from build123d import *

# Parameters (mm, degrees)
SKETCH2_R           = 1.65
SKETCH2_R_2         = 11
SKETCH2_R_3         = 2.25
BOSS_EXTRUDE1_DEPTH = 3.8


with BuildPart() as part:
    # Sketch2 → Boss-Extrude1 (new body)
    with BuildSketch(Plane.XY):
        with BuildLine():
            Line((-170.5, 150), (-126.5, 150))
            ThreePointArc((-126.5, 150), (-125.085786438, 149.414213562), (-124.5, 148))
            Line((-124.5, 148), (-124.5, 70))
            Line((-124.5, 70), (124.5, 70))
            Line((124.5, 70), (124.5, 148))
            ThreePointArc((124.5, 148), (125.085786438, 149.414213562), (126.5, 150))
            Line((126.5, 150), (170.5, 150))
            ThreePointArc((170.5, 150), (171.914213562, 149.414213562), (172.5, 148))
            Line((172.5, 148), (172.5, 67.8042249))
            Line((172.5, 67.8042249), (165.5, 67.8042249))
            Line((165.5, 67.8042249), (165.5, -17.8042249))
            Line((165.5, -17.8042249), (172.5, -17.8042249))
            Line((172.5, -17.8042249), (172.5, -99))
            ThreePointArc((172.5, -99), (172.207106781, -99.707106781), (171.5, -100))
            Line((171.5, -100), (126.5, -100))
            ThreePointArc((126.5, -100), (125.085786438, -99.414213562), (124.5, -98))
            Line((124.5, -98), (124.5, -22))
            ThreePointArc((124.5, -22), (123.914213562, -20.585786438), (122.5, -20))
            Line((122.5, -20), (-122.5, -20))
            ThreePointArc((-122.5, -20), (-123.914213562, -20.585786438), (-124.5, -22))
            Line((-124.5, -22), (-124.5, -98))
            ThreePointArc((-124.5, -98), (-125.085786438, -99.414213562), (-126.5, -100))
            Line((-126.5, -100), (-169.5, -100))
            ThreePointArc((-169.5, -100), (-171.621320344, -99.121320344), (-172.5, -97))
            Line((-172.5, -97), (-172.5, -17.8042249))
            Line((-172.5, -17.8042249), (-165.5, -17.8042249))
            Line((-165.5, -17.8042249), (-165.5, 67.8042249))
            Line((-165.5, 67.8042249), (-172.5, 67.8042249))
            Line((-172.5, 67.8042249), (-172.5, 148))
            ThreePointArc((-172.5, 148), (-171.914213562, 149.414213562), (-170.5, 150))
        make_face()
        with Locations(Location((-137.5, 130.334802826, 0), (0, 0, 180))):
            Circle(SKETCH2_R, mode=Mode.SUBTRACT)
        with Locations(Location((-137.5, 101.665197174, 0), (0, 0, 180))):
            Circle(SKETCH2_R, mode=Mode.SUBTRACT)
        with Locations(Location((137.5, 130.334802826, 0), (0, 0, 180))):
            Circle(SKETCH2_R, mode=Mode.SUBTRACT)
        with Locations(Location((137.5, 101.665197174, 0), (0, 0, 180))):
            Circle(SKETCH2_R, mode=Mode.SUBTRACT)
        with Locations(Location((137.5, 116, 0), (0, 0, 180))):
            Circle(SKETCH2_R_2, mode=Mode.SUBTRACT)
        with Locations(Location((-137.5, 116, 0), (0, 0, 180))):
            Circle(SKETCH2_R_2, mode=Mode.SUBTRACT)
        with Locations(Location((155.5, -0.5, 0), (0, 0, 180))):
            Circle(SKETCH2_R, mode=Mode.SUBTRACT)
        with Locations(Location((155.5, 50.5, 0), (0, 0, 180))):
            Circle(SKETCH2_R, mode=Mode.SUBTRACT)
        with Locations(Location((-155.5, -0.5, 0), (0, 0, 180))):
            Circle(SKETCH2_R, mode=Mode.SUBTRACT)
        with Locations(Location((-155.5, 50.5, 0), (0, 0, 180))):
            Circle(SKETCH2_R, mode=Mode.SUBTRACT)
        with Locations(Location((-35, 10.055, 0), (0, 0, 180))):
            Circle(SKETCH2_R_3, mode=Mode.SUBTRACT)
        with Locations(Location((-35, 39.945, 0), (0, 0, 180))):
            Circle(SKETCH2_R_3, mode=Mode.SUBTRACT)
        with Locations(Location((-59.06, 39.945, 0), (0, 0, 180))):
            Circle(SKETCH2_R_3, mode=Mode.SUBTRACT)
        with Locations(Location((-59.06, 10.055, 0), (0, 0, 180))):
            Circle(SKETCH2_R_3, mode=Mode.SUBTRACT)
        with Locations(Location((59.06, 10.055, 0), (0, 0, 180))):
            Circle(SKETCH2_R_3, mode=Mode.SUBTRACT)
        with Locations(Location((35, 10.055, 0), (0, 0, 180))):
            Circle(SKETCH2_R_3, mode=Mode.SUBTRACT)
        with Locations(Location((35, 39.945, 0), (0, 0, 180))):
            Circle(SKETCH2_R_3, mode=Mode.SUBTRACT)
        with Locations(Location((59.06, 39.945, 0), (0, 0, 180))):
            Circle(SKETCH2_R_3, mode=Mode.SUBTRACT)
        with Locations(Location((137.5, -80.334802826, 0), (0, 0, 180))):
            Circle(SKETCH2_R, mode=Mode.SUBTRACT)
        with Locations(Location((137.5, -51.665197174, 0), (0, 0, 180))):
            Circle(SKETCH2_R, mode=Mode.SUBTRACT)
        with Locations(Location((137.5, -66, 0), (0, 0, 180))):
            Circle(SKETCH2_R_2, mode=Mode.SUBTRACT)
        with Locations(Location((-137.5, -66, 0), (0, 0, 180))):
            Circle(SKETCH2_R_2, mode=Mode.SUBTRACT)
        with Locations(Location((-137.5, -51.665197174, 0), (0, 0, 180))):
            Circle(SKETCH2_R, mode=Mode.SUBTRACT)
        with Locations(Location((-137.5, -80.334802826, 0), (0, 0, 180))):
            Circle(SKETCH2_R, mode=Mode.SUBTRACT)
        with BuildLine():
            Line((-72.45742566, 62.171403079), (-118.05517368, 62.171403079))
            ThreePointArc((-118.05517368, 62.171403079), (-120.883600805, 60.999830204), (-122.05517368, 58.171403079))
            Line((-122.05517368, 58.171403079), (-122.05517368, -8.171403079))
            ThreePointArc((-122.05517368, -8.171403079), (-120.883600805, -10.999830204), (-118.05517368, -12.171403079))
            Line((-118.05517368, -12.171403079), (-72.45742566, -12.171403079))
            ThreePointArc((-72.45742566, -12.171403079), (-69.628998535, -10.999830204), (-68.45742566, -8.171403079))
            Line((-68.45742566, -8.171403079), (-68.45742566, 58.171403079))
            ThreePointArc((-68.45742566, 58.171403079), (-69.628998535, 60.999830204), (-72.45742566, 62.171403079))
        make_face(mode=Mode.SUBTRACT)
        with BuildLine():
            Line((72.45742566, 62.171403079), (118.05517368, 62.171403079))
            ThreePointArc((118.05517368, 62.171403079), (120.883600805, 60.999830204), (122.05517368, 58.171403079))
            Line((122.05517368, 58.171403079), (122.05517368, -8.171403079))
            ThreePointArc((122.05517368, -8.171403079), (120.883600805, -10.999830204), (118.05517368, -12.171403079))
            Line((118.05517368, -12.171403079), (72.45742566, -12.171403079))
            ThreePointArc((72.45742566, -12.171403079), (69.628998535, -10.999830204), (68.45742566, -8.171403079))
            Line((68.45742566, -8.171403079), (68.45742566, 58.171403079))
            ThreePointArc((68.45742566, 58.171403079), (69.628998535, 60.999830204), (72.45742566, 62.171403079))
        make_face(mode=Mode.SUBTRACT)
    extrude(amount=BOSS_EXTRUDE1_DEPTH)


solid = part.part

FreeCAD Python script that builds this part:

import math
import FreeCAD as App
import Part
import Sketcher
Q = App.Units.Quantity

doc = App.newDocument("Part")
params = doc.addObject("Spreadsheet::Sheet", "Params")
for row, (alias, value) in enumerate([
    ("sketch1_diameter", "22 mm"),
    ("sketch1_radius", "2 mm"),
    ("sketch1_radius2", "3 mm"),
    ("sketch1_radius3", "1 mm"),
    ("sketch1_radius4", "4 mm"),
    ("pad1_length", "3.8 mm"),
], start=1):
    params.set(f"A{row}", alias)
    params.set(f"B{row}", "=" + value)
    params.setAlias(f"B{row}", alias)

body = doc.addObject("PartDesign::Body", "Body")

sketch1 = doc.addObject("Sketcher::SketchObject", "Sketch")
body.addObject(sketch1)
sketch1.AttachmentSupport = (doc.XY_Plane, [""])
sketch1.MapMode = "FlatFace"
sketch1.addGeometry([
    Part.LineSegment(App.Vector(-126.5, 150, 0), App.Vector(-170.5, 150, 0)),
    Part.ArcOfCircle(Part.Circle(App.Vector(-170.5, 148, 0), App.Vector(0, 0, 1), 2), math.radians(90), math.radians(180)),
    Part.LineSegment(App.Vector(-172.5, 148, 0), App.Vector(-172.5, 67.804225, 0)),
    Part.LineSegment(App.Vector(-172.5, 67.804225, 0), App.Vector(-165.5, 67.804225, 0)),
    Part.LineSegment(App.Vector(-165.5, 67.804225, 0), App.Vector(-165.5, -17.804225, 0)),
    Part.LineSegment(App.Vector(-165.5, -17.804225, 0), App.Vector(-172.5, -17.804225, 0)),
    Part.LineSegment(App.Vector(-172.5, -17.804225, 0), App.Vector(-172.5, -97, 0)),
    Part.ArcOfCircle(Part.Circle(App.Vector(-169.5, -97, 0), App.Vector(0, 0, 1), 3), math.radians(180), math.radians(270)),
    Part.LineSegment(App.Vector(-169.5, -100, 0), App.Vector(-126.5, -100, 0)),
    Part.ArcOfCircle(Part.Circle(App.Vector(-126.5, -98, 0), App.Vector(0, 0, 1), 2), math.radians(-90), math.radians(0)),
    Part.LineSegment(App.Vector(-124.5, -98, 0), App.Vector(-124.5, -22, 0)),
    Part.ArcOfCircle(Part.Circle(App.Vector(-122.5, -22, 0), App.Vector(0, 0, 1), 2), math.radians(90), math.radians(180)),
    Part.LineSegment(App.Vector(-122.5, -20, 0), App.Vector(122.5, -20, 0)),
    Part.ArcOfCircle(Part.Circle(App.Vector(122.5, -22, 0), App.Vector(0, 0, 1), 2), math.radians(0), math.radians(90)),
    Part.LineSegment(App.Vector(124.5, -22, 0), App.Vector(124.5, -98, 0)),
    Part.ArcOfCircle(Part.Circle(App.Vector(126.5, -98, 0), App.Vector(0, 0, 1), 2), math.radians(-180), math.radians(-90)),
    Part.LineSegment(App.Vector(126.5, -100, 0), App.Vector(171.5, -100, 0)),
    Part.ArcOfCircle(Part.Circle(App.Vector(171.5, -99, 0), App.Vector(0, 0, 1), 1), math.radians(-90), math.radians(0)),
    Part.LineSegment(App.Vector(172.5, -99, 0), App.Vector(172.5, -17.804225, 0)),
    Part.LineSegment(App.Vector(172.5, -17.804225, 0), App.Vector(165.5, -17.804225, 0)),
    Part.LineSegment(App.Vector(165.5, -17.804225, 0), App.Vector(165.5, 67.804225, 0)),
    Part.LineSegment(App.Vector(165.5, 67.804225, 0), App.Vector(172.5, 67.804225, 0)),
    Part.LineSegment(App.Vector(172.5, 67.804225, 0), App.Vector(172.5, 148, 0)),
    Part.ArcOfCircle(Part.Circle(App.Vector(170.5, 148, 0), App.Vector(0, 0, 1), 2), math.radians(0), math.radians(90)),
    Part.LineSegment(App.Vector(170.5, 150, 0), App.Vector(126.5, 150, 0)),
    Part.ArcOfCircle(Part.Circle(App.Vector(126.5, 148, 0), App.Vector(0, 0, 1), 2), math.radians(90), math.radians(180)),
    Part.LineSegment(App.Vector(124.5, 148, 0), App.Vector(124.5, 70, 0)),
    Part.LineSegment(App.Vector(124.5, 70, 0), App.Vector(-124.5, 70, 0)),
    Part.LineSegment(App.Vector(-124.5, 70, 0), App.Vector(-124.5, 148, 0)),
    Part.ArcOfCircle(Part.Circle(App.Vector(-126.5, 148, 0), App.Vector(0, 0, 1), 2), math.radians(0), math.radians(90)),
    Part.Circle(App.Vector(137.5, -80.334803, 0), App.Vector(0, 0, 1), 1.65),
    Part.Circle(App.Vector(137.5, -66, 0), App.Vector(0, 0, 1), 11),
    Part.Circle(App.Vector(137.5, -51.665197, 0), App.Vector(0, 0, 1), 1.65),
    Part.Circle(App.Vector(155.5, -0.5, 0), App.Vector(0, 0, 1), 1.65),
    Part.LineSegment(App.Vector(72.457426, 62.171403, 0), App.Vector(118.055174, 62.171403, 0)),
    Part.ArcOfCircle(Part.Circle(App.Vector(118.055174, 58.171403, 0), App.Vector(0, 0, 1), 4), math.radians(0), math.radians(90)),
    Part.LineSegment(App.Vector(122.055174, 58.171403, 0), App.Vector(122.055174, -8.171403, 0)),
    Part.ArcOfCircle(Part.Circle(App.Vector(118.055174, -8.171403, 0), App.Vector(0, 0, 1), 4), math.radians(-90), math.radians(0)),
    Part.LineSegment(App.Vector(118.055174, -12.171403, 0), App.Vector(72.457426, -12.171403, 0)),
    Part.ArcOfCircle(Part.Circle(App.Vector(72.457426, -8.171403, 0), App.Vector(0, 0, 1), 4), math.radians(180), math.radians(270)),
    Part.LineSegment(App.Vector(68.457426, -8.171403, 0), App.Vector(68.457426, 58.171403, 0)),
    Part.ArcOfCircle(Part.Circle(App.Vector(72.457426, 58.171403, 0), App.Vector(0, 0, 1), 4), math.radians(90), math.radians(180)),
    Part.Circle(App.Vector(59.06, 10.055, 0), App.Vector(0, 0, 1), 2.25),
    Part.Circle(App.Vector(35, 10.055, 0), App.Vector(0, 0, 1), 2.25),
    Part.Circle(App.Vector(-137.5, -80.334803, 0), App.Vector(0, 0, 1), 1.65),
    Part.Circle(App.Vector(-137.5, -66, 0), App.Vector(0, 0, 1), 11),
    Part.Circle(App.Vector(-137.5, -51.665197, 0), App.Vector(0, 0, 1), 1.65),
    Part.Circle(App.Vector(-35, 10.055, 0), App.Vector(0, 0, 1), 2.25),
    Part.Circle(App.Vector(-59.06, 10.055, 0), App.Vector(0, 0, 1), 2.25),
    Part.ArcOfCircle(Part.Circle(App.Vector(-72.457426, 58.171403, 0), App.Vector(0, 0, 1), 4), math.radians(0), math.radians(90)),
    Part.LineSegment(App.Vector(-68.457426, 58.171403, 0), App.Vector(-68.457426, -8.171403, 0)),
    Part.ArcOfCircle(Part.Circle(App.Vector(-72.457426, -8.171403, 0), App.Vector(0, 0, 1), 4), math.radians(-90), math.radians(0)),
    Part.LineSegment(App.Vector(-72.457426, -12.171403, 0), App.Vector(-118.055174, -12.171403, 0)),
    Part.ArcOfCircle(Part.Circle(App.Vector(-118.055174, -8.171403, 0), App.Vector(0, 0, 1), 4), math.radians(180), math.radians(270)),
    Part.LineSegment(App.Vector(-122.055174, -8.171403, 0), App.Vector(-122.055174, 58.171403, 0)),
    Part.ArcOfCircle(Part.Circle(App.Vector(-118.055174, 58.171403, 0), App.Vector(0, 0, 1), 4), math.radians(90), math.radians(180)),
    Part.LineSegment(App.Vector(-118.055174, 62.171403, 0), App.Vector(-72.457426, 62.171403, 0)),
    Part.Circle(App.Vector(-155.5, -0.5, 0), App.Vector(0, 0, 1), 1.65),
    Part.Circle(App.Vector(155.5, 50.5, 0), App.Vector(0, 0, 1), 1.65),
    Part.Circle(App.Vector(59.06, 39.945, 0), App.Vector(0, 0, 1), 2.25),
    Part.Circle(App.Vector(35, 39.945, 0), App.Vector(0, 0, 1), 2.25),
    Part.Circle(App.Vector(137.5, 101.665197, 0), App.Vector(0, 0, 1), 1.65),
    Part.Circle(App.Vector(137.5, 116, 0), App.Vector(0, 0, 1), 11),
    Part.Circle(App.Vector(137.5, 130.334803, 0), App.Vector(0, 0, 1), 1.65),
    Part.Circle(App.Vector(-35, 39.945, 0), App.Vector(0, 0, 1), 2.25),
    Part.Circle(App.Vector(-59.06, 39.945, 0), App.Vector(0, 0, 1), 2.25),
    Part.Circle(App.Vector(-155.5, 50.5, 0), App.Vector(0, 0, 1), 1.65),
    Part.Circle(App.Vector(-137.5, 101.665197, 0), App.Vector(0, 0, 1), 1.65),
    Part.Circle(App.Vector(-137.5, 116, 0), App.Vector(0, 0, 1), 11),
    Part.Circle(App.Vector(-137.5, 130.334803, 0), App.Vector(0, 0, 1), 1.65),
], False)
sketch1.addConstraint([
    Sketcher.Constraint("Tangent", 0, 2, 1, 1),
    Sketcher.Constraint("Tangent", 1, 2, 2, 1),
    Sketcher.Constraint("Coincident", 2, 2, 3, 1),
    Sketcher.Constraint("Coincident", 3, 2, 4, 1),
    Sketcher.Constraint("Coincident", 4, 2, 5, 1),
    Sketcher.Constraint("Coincident", 5, 2, 6, 1),
    Sketcher.Constraint("Tangent", 6, 2, 7, 1),
    Sketcher.Constraint("Tangent", 7, 2, 8, 1),
    Sketcher.Constraint("Tangent", 8, 2, 9, 1),
    Sketcher.Constraint("Tangent", 9, 2, 10, 1),
    Sketcher.Constraint("Tangent", 10, 2, 11, 2),
    Sketcher.Constraint("Tangent", 11, 1, 12, 1),
    Sketcher.Constraint("Tangent", 12, 2, 13, 2),
    Sketcher.Constraint("Tangent", 13, 1, 14, 1),
    Sketcher.Constraint("Tangent", 14, 2, 15, 1),
    Sketcher.Constraint("Tangent", 15, 2, 16, 1),
    Sketcher.Constraint("Tangent", 16, 2, 17, 1),
    Sketcher.Constraint("Tangent", 17, 2, 18, 1),
    Sketcher.Constraint("Coincident", 18, 2, 19, 1),
    Sketcher.Constraint("Coincident", 19, 2, 20, 1),
    Sketcher.Constraint("Coincident", 20, 2, 21, 1),
    Sketcher.Constraint("Coincident", 21, 2, 22, 1),
    Sketcher.Constraint("Tangent", 22, 2, 23, 1),
    Sketcher.Constraint("Tangent", 23, 2, 24, 1),
    Sketcher.Constraint("Tangent", 24, 2, 25, 1),
    Sketcher.Constraint("Tangent", 25, 2, 26, 1),
    Sketcher.Constraint("Coincident", 26, 2, 27, 1),
    Sketcher.Constraint("Coincident", 27, 2, 28, 1),
    Sketcher.Constraint("Tangent", 28, 2, 29, 1),
    Sketcher.Constraint("Tangent", 29, 2, 0, 1),
    Sketcher.Constraint("Tangent", 34, 2, 35, 2),
    Sketcher.Constraint("Tangent", 35, 1, 36, 1),
    Sketcher.Constraint("Tangent", 36, 2, 37, 2),
    Sketcher.Constraint("Tangent", 37, 1, 38, 1),
    Sketcher.Constraint("Tangent", 38, 2, 39, 2),
    Sketcher.Constraint("Tangent", 39, 1, 40, 1),
    Sketcher.Constraint("Tangent", 40, 2, 41, 2),
    Sketcher.Constraint("Tangent", 41, 1, 34, 1),
    Sketcher.Constraint("Tangent", 49, 1, 50, 1),
    Sketcher.Constraint("Tangent", 50, 2, 51, 2),
    Sketcher.Constraint("Tangent", 51, 1, 52, 1),
    Sketcher.Constraint("Tangent", 52, 2, 53, 2),
    Sketcher.Constraint("Tangent", 53, 1, 54, 1),
    Sketcher.Constraint("Tangent", 54, 2, 55, 2),
    Sketcher.Constraint("Tangent", 55, 1, 56, 1),
    Sketcher.Constraint("Tangent", 56, 2, 49, 2),
    Sketcher.Constraint("Horizontal", 0),
    Sketcher.Constraint("Vertical", 2),
    Sketcher.Constraint("Horizontal", 3),
    Sketcher.Constraint("Vertical", 4),
    Sketcher.Constraint("Horizontal", 5),
    Sketcher.Constraint("Vertical", 6),
    Sketcher.Constraint("Horizontal", 8),
    Sketcher.Constraint("Vertical", 10),
    Sketcher.Constraint("Horizontal", 12),
    Sketcher.Constraint("Vertical", 14),
    Sketcher.Constraint("Horizontal", 16),
    Sketcher.Constraint("Vertical", 18),
    Sketcher.Constraint("Horizontal", 19),
    Sketcher.Constraint("Vertical", 20),
    Sketcher.Constraint("Horizontal", 21),
    Sketcher.Constraint("Vertical", 22),
    Sketcher.Constraint("Horizontal", 24),
    Sketcher.Constraint("Vertical", 26),
    Sketcher.Constraint("Horizontal", 27),
    Sketcher.Constraint("Vertical", 28),
    Sketcher.Constraint("Horizontal", 34),
    Sketcher.Constraint("Vertical", 36),
    Sketcher.Constraint("Horizontal", 38),
    Sketcher.Constraint("Vertical", 40),
    Sketcher.Constraint("Vertical", 50),
    Sketcher.Constraint("Horizontal", 52),
    Sketcher.Constraint("Vertical", 54),
    Sketcher.Constraint("Horizontal", 56),
    Sketcher.Constraint("Equal", 1, 9),
    Sketcher.Constraint("Equal", 9, 11),
    Sketcher.Constraint("Equal", 11, 13),
    Sketcher.Constraint("Equal", 13, 15),
    Sketcher.Constraint("Equal", 15, 23),
    Sketcher.Constraint("Equal", 23, 25),
    Sketcher.Constraint("Equal", 25, 29),
    Sketcher.Constraint("Equal", 30, 32),
    Sketcher.Constraint("Equal", 32, 33),
    Sketcher.Constraint("Equal", 35, 37),
    Sketcher.Constraint("Equal", 37, 39),
    Sketcher.Constraint("Equal", 39, 41),
    Sketcher.Constraint("Equal", 42, 43),
    Sketcher.Constraint("Equal", 33, 44),
    Sketcher.Constraint("Equal", 31, 45),
    Sketcher.Constraint("Equal", 44, 46),
    Sketcher.Constraint("Equal", 43, 47),
    Sketcher.Constraint("Equal", 47, 48),
    Sketcher.Constraint("Equal", 41, 49),
    Sketcher.Constraint("Equal", 49, 51),
    Sketcher.Constraint("Equal", 51, 53),
    Sketcher.Constraint("Equal", 53, 55),
    Sketcher.Constraint("Equal", 46, 57),
    Sketcher.Constraint("Equal", 57, 58),
    Sketcher.Constraint("Equal", 48, 59),
    Sketcher.Constraint("Equal", 59, 60),
    Sketcher.Constraint("Equal", 58, 61),
    Sketcher.Constraint("Equal", 45, 62),
    Sketcher.Constraint("Equal", 61, 63),
    Sketcher.Constraint("Equal", 60, 64),
    Sketcher.Constraint("Equal", 64, 65),
    Sketcher.Constraint("Equal", 63, 66),
    Sketcher.Constraint("Equal", 66, 67),
    Sketcher.Constraint("Equal", 62, 68),
    Sketcher.Constraint("Equal", 67, 69),
    Sketcher.Constraint("Symmetric", 9, 3, 15, 3, -2),
    Sketcher.Constraint("Symmetric", 1, 3, 23, 3, -2),
    Sketcher.Constraint("Symmetric", 30, 3, 44, 3, -2),
    Sketcher.Constraint("Symmetric", 31, 3, 45, 3, -2),
    Sketcher.Constraint("Symmetric", 32, 3, 46, 3, -2),
    Sketcher.Constraint("Symmetric", 43, 3, 47, 3, -2),
    Sketcher.Constraint("Symmetric", 42, 3, 48, 3, -2),
    Sketcher.Constraint("Symmetric", 41, 3, 49, 3, -2),
    Sketcher.Constraint("Symmetric", 37, 3, 53, 3, -2),
    Sketcher.Constraint("Symmetric", 33, 3, 57, 3, -2),
    Sketcher.Constraint("Symmetric", 60, 3, 64, 3, -2),
    Sketcher.Constraint("Symmetric", 59, 3, 65, 3, -2),
    Sketcher.Constraint("Symmetric", 58, 3, 66, 3, -2),
    Sketcher.Constraint("Symmetric", 61, 3, 67, 3, -2),
    Sketcher.Constraint("Symmetric", 62, 3, 68, 3, -2),
    Sketcher.Constraint("Symmetric", 63, 3, 69, 3, -2),
    Sketcher.Constraint("Symmetric", 5, 2, 18, 2, -2),
    Sketcher.Constraint("Symmetric", 3, 2, 20, 2, -2),
    Sketcher.Constraint("Horizontal", 42, 3, 43, 3),
    Sketcher.Constraint("Horizontal", 59, 3, 60, 3),
    Sketcher.Constraint("Vertical", 15, 3, 25, 3),
    Sketcher.Constraint("Vertical", 9, 3, 29, 3),
    Sketcher.Constraint("Vertical", 30, 3, 31, 3),
    Sketcher.Constraint("Vertical", 31, 3, 32, 3),
    Sketcher.Constraint("Vertical", 33, 3, 58, 3),
    Sketcher.Constraint("Vertical", 42, 3, 59, 3),
    Sketcher.Constraint("Vertical", 43, 3, 60, 3),
    Sketcher.Constraint("Vertical", 32, 3, 61, 3),
    Sketcher.Constraint("Vertical", 61, 3, 62, 3),
    Sketcher.Constraint("Vertical", 62, 3, 63, 3),
    Sketcher.Constraint("Vertical", 2, 2, 5, 2),
    Sketcher.Constraint("Diameter", 31, Q("22 mm")),
    Sketcher.Constraint("Radius", 1, Q("2 mm")),
    Sketcher.Constraint("Radius", 7, Q("3 mm")),
    Sketcher.Constraint("Radius", 17, Q("1 mm")),
    Sketcher.Constraint("Radius", 35, Q("4 mm")),
    Sketcher.Constraint("Diameter", 30, Q("3.3 mm")),
    Sketcher.Constraint("Diameter", 42, Q("4.5 mm")),
    Sketcher.Constraint("DistanceX", 0, 2, 0, 1, Q("44 mm")),
    Sketcher.Constraint("DistanceX", 3, 1, 3, 2, Q("7 mm")),
    Sketcher.Constraint("DistanceX", 12, 1, 12, 2, Q("245 mm")),
    Sketcher.Constraint("DistanceY", 10, 1, 10, 2, Q("76 mm")),
    Sketcher.Constraint("DistanceY", 26, 2, 26, 1, Q("78 mm")),
    Sketcher.Constraint("DistanceY", -1, 1, 1, 3, Q("148 mm")),
    Sketcher.Constraint("DistanceY", 7, 3, -1, 1, Q("97 mm")),
    Sketcher.Constraint("DistanceY", 31, 3, -1, 1, Q("66 mm")),
    Sketcher.Constraint("DistanceX", -1, 1, 43, 3, Q("35 mm")),
    Sketcher.Constraint("DistanceY", -1, 1, 62, 3, Q("116 mm")),
    Sketcher.Constraint("DistanceX", -1, 1, 30, 3, Q("137.5 mm")),
    Sketcher.Constraint("DistanceX", -1, 1, 33, 3, Q("155.5 mm")),
    Sketcher.Constraint("DistanceY", 33, 3, -1, 1, Q("0.5 mm")),
    Sketcher.Constraint("DistanceY", -1, 1, 58, 3, Q("50.5 mm")),
    Sketcher.Constraint("DistanceX", -1, 1, 42, 3, Q("59.06 mm")),
    Sketcher.Constraint("DistanceY", -1, 1, 42, 3, Q("10.055 mm")),
    Sketcher.Constraint("DistanceY", -1, 1, 59, 3, Q("39.945 mm")),
    Sketcher.Constraint("DistanceX", 34, 1, 34, 2, Q("45.597748 mm")),
    Sketcher.Constraint("DistanceY", 4, 2, 4, 1, Q("85.60845 mm")),
    Sketcher.Constraint("DistanceY", 2, 2, 2, 1, Q("80.195775 mm")),
    Sketcher.Constraint("DistanceY", 36, 2, 36, 1, Q("66.342806 mm")),
    Sketcher.Constraint("DistanceY", 30, 3, -1, 1, Q("80.334803 mm")),
    Sketcher.Constraint("DistanceY", 32, 3, -1, 1, Q("51.665197 mm")),
    Sketcher.Constraint("DistanceX", -1, 1, 35, 3, Q("118.055174 mm")),
    Sketcher.Constraint("DistanceY", -1, 1, 35, 3, Q("58.171403 mm")),
    Sketcher.Constraint("DistanceY", -1, 1, 61, 3, Q("101.665197 mm")),
    Sketcher.Constraint("DistanceY", -1, 1, 63, 3, Q("130.334803 mm")),
])
sketch1.setExpression("Constraints[140]", "Params.sketch1_diameter")
sketch1.setExpression("Constraints[141]", "Params.sketch1_radius")
sketch1.setExpression("Constraints[142]", "Params.sketch1_radius2")
sketch1.setExpression("Constraints[143]", "Params.sketch1_radius3")
sketch1.setExpression("Constraints[144]", "Params.sketch1_radius4")
pad1 = doc.addObject("PartDesign::Pad", "Pad")
body.addObject(pad1)
pad1.Profile = sketch1
pad1.setExpression("Length", "Params.pad1_length")

doc.recompute()
